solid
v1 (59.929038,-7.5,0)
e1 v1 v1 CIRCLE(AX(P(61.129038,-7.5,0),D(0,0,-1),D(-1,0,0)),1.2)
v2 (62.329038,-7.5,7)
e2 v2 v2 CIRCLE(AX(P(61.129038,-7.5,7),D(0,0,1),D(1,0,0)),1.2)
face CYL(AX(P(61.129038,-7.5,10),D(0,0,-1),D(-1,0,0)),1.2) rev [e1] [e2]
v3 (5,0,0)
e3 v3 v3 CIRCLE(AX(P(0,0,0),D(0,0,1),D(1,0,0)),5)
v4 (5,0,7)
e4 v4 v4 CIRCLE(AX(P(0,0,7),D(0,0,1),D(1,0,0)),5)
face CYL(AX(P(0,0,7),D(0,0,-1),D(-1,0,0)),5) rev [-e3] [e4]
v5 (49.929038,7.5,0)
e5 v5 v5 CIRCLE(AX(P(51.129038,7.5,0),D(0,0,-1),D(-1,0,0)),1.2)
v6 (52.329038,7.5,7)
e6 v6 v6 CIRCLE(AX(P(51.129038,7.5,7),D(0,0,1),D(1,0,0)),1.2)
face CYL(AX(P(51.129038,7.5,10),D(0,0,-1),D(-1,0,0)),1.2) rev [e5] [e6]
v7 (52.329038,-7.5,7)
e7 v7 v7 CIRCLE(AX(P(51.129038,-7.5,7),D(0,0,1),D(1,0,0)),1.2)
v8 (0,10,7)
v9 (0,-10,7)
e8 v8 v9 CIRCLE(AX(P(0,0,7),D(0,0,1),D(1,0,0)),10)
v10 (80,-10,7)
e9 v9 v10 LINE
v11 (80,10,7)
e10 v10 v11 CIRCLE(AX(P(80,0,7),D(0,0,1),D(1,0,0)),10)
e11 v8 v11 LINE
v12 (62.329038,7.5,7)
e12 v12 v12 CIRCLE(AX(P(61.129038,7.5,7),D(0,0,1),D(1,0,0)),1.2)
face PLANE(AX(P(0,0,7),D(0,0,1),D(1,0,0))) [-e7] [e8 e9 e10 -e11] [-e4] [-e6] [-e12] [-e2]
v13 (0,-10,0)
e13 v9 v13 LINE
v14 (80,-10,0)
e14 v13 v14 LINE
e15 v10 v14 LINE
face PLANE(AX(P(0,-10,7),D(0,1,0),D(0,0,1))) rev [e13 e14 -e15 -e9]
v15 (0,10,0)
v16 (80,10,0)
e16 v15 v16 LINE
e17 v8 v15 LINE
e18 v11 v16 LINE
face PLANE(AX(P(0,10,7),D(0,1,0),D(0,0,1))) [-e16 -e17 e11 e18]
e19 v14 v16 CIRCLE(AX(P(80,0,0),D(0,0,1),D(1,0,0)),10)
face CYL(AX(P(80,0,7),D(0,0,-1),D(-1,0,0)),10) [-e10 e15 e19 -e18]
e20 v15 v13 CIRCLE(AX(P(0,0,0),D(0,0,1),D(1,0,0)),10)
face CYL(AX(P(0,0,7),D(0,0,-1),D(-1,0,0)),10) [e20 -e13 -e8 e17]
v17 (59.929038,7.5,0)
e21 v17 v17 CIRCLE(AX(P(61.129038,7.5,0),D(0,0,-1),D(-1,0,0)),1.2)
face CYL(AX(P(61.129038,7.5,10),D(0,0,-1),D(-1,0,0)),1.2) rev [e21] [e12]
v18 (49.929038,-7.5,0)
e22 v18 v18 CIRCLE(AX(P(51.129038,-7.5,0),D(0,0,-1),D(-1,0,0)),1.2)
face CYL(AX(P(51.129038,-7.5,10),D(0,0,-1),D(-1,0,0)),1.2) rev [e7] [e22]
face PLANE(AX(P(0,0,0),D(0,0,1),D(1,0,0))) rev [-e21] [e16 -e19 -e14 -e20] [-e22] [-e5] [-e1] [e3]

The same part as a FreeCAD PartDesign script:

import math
import FreeCAD as App
import Part
import Sketcher

doc = App.newDocument("Part")
body = doc.addObject("PartDesign::Body", "Body")

# Sketch on XY plane
sketch1 = doc.addObject("Sketcher::SketchObject", "Sketch")
body.addObject(sketch1)
sketch1.AttachmentSupport = (doc.XY_Plane, [""])
sketch1.MapMode = "FlatFace"
sketch1.addGeometry([
    Part.ArcOfCircle(Part.Circle(App.Vector(0, 0, 0), App.Vector(0, 0, 1), 10), math.radians(90), math.radians(270)),  # 0
    Part.LineSegment(App.Vector(0, -10, 0), App.Vector(80, -10, 0)),  # 1
    Part.ArcOfCircle(Part.Circle(App.Vector(80, 0, 0), App.Vector(0, 0, 1), 10), math.radians(-90), math.radians(90)),  # 2
    Part.LineSegment(App.Vector(80, 10, 0), App.Vector(0, 10, 0)),  # 3
    Part.Circle(App.Vector(0, 0, 0), App.Vector(0, 0, 1), 5),  # 4
], False)
sketch1.addConstraint([
    Sketcher.Constraint("Tangent", 0, 2, 1, 1),
    Sketcher.Constraint("Tangent", 1, 2, 2, 1),
    Sketcher.Constraint("Tangent", 2, 2, 3, 1),
    Sketcher.Constraint("Tangent", 3, 2, 0, 1),
    Sketcher.Constraint("Horizontal", 1),
    Sketcher.Constraint("Horizontal", 3),
    Sketcher.Constraint("Coincident", 0, 3, -1, 1),
    Sketcher.Constraint("Coincident", 4, 3, -1, 1),
    Sketcher.Constraint("Diameter", 4, 10.0),
    Sketcher.Constraint("Radius", 0, 10.0),
    Sketcher.Constraint("DistanceX", 1, 1, 1, 2, 80.0),
])
pad1 = doc.addObject("PartDesign::Pad", "Pad")
body.addObject(pad1)
pad1.Profile = sketch1
pad1.Length = 7

# Sketch on XY plane
sketch2 = doc.addObject("Sketcher::SketchObject", "Sketch001")
body.addObject(sketch2)
sketch2.AttachmentSupport = (doc.XY_Plane, [""])
sketch2.MapMode = "FlatFace"
sketch2.addGeometry([
    Part.Circle(App.Vector(51.1, -7.5, 0), App.Vector(0, 0, 1), 1.2),
    Part.Circle(App.Vector(61.1, -7.5, 0), App.Vector(0, 0, 1), 1.2),
    Part.Circle(App.Vector(61.1, 7.5, 0), App.Vector(0, 0, 1), 1.2),
    Part.Circle(App.Vector(51.1, 7.5, 0), App.Vector(0, 0, 1), 1.2),
], False)
sketch2.addConstraint([
    Sketcher.Constraint("Equal", 0, 1),
    Sketcher.Constraint("Equal", 1, 2),
    Sketcher.Constraint("Equal", 2, 3),
    Sketcher.Constraint("Symmetric", 1, 3, 2, 3, -1),
    Sketcher.Constraint("Symmetric", 0, 3, 3, 3, -1),
    Sketcher.Constraint("Horizontal", 0, 3, 1, 3),
    Sketcher.Constraint("Diameter", 0, 2.4),
    Sketcher.Constraint("DistanceX", 0, 3, 1, 3, 10.0),
    Sketcher.Constraint("DistanceY", 1, 3, 2, 3, 15.0),
    Sketcher.Constraint("DistanceX", -1, 1, 0, 3, 51.129038),
])
pocket1 = doc.addObject("PartDesign::Pocket", "Pocket")
body.addObject(pocket1)
pocket1.Profile = sketch2
pocket1.Length = 10
pocket1.Reversed = True

doc.recompute()
